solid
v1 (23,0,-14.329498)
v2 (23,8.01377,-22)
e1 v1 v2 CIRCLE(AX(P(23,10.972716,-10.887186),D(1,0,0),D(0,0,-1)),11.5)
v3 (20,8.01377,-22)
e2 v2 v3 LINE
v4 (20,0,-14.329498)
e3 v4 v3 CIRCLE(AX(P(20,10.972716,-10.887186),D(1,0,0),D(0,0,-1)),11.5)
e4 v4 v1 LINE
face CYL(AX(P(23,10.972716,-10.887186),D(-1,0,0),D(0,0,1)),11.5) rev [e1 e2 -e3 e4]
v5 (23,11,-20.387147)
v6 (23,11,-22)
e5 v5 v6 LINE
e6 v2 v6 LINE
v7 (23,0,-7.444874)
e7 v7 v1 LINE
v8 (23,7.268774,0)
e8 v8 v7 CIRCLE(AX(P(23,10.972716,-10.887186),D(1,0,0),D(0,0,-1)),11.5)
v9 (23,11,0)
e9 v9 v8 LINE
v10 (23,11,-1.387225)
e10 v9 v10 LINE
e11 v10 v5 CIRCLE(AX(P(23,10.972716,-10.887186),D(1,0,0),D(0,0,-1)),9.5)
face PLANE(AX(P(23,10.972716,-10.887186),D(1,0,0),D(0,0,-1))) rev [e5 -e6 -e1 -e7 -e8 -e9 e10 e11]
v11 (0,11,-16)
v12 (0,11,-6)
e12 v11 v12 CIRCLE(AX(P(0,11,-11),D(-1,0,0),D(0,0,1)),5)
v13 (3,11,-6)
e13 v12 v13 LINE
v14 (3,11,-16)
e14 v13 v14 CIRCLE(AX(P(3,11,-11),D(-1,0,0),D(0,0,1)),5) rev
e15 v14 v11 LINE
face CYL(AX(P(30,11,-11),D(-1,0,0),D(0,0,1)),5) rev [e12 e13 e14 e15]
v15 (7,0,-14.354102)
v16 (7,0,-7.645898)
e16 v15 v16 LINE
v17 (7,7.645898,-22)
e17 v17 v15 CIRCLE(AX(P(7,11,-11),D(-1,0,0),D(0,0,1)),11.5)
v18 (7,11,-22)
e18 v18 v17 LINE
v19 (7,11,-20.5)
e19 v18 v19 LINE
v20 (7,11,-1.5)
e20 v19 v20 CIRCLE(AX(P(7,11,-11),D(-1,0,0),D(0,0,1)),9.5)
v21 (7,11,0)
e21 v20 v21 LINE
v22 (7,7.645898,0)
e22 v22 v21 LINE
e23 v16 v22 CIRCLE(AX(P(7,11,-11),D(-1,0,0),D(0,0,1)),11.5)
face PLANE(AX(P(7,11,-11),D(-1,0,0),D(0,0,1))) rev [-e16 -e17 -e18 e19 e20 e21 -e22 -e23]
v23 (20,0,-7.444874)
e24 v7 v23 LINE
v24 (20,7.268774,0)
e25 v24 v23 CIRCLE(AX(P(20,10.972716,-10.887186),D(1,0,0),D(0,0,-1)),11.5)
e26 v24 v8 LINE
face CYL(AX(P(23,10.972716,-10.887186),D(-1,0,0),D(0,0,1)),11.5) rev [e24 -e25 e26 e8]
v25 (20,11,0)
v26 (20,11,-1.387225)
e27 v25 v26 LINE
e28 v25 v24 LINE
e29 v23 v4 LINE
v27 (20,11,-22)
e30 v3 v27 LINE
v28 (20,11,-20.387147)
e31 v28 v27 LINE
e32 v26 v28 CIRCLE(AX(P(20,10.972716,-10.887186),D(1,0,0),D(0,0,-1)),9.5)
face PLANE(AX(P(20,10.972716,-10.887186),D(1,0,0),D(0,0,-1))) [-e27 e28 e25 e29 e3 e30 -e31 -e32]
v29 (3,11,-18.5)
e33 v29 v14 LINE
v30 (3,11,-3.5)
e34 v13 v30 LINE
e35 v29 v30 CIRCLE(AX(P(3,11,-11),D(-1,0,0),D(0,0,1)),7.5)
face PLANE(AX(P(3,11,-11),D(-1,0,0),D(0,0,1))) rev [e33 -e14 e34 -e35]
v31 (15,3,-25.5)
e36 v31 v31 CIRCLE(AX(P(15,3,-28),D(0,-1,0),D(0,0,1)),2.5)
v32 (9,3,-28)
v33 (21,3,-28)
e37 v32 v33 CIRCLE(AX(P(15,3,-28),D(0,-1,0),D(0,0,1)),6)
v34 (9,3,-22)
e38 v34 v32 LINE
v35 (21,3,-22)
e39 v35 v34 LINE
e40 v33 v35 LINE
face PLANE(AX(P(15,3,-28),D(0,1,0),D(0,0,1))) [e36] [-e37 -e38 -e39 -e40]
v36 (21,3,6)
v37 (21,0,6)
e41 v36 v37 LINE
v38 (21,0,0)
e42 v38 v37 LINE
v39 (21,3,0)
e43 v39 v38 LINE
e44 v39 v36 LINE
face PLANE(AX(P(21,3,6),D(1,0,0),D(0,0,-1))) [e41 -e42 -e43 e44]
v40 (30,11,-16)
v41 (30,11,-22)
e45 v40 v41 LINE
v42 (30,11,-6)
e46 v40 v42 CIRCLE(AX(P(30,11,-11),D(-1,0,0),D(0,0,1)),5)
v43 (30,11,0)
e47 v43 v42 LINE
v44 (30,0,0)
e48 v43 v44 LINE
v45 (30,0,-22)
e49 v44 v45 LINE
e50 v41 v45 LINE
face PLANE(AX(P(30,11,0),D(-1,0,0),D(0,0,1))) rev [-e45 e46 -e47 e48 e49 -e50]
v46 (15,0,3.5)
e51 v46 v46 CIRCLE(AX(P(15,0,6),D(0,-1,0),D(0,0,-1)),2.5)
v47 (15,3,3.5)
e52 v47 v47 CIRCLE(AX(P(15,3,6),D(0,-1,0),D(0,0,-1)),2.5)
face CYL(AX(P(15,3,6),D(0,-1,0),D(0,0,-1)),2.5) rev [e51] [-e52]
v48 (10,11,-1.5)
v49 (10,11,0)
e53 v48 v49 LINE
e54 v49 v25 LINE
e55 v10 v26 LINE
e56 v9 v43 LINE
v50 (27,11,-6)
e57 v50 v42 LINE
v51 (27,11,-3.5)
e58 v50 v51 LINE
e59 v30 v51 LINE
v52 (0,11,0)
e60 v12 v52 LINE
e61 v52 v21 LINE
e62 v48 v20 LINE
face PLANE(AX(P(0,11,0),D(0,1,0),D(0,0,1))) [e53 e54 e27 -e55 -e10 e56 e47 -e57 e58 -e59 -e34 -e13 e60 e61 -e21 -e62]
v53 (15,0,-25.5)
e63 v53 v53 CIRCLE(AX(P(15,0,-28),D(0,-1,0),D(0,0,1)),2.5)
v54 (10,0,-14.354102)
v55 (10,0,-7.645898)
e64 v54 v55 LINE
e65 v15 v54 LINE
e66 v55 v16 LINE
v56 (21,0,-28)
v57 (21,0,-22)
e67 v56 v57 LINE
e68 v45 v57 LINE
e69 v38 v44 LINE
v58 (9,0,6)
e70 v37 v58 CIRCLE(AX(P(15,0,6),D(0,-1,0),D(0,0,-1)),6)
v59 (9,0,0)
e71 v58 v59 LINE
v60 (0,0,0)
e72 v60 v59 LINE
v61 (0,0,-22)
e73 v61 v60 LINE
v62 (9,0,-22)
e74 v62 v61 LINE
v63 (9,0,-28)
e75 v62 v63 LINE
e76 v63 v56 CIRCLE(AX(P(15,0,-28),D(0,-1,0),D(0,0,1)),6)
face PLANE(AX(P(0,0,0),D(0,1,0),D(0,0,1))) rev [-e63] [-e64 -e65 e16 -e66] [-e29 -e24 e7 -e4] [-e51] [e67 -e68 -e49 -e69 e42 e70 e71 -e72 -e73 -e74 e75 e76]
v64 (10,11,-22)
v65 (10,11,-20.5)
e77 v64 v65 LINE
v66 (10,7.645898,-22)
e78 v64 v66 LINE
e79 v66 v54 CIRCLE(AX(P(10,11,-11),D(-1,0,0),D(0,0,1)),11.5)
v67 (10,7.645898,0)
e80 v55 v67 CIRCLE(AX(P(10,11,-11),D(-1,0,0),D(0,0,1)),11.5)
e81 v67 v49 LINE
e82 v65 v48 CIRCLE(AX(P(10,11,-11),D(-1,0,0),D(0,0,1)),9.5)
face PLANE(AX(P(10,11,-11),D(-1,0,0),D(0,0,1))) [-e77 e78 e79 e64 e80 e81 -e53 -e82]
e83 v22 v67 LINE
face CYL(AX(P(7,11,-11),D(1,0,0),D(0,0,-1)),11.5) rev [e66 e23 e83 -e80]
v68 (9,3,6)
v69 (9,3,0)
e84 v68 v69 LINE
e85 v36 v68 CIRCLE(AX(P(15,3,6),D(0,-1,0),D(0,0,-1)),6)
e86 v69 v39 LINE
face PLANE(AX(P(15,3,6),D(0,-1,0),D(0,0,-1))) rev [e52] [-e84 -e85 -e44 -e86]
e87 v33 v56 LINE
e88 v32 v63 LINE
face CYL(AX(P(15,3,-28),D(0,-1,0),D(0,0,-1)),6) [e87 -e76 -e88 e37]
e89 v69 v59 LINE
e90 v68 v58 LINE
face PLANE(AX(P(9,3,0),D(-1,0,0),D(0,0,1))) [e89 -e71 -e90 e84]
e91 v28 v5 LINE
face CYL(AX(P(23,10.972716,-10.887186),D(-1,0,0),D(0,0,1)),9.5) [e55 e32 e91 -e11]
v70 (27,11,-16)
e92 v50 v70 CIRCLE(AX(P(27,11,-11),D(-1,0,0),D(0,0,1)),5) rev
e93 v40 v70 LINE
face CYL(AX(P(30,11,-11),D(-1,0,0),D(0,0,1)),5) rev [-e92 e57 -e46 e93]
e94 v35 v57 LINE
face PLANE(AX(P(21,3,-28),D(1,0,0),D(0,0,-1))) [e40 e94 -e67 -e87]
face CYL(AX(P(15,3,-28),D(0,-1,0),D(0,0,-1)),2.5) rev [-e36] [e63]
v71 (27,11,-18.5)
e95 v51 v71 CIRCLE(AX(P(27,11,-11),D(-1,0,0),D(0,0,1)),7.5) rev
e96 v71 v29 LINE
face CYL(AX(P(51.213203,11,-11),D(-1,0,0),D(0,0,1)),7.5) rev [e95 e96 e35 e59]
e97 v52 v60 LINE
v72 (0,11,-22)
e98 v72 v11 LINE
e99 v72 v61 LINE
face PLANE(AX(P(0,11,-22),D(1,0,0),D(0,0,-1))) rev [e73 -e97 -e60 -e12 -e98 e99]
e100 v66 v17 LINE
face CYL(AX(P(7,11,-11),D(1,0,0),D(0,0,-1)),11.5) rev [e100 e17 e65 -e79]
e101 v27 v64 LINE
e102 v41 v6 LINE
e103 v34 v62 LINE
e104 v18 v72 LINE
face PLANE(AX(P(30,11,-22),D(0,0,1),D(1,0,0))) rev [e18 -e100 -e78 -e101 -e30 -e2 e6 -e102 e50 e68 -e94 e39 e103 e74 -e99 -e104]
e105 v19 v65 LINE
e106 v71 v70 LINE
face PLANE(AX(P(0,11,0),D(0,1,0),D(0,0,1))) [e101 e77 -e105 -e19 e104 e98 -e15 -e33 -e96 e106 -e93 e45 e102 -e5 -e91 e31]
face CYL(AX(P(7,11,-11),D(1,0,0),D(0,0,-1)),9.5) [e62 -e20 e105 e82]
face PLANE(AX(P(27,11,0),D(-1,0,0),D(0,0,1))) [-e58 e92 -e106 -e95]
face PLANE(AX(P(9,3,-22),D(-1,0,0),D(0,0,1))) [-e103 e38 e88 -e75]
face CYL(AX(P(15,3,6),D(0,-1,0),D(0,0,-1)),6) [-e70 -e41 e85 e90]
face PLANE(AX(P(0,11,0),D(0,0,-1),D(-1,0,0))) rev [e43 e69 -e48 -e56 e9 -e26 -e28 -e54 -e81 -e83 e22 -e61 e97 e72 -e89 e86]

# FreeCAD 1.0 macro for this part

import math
import FreeCAD as App
import Part
import Sketcher
from FreeCAD import Vector
Q = App.Units.Quantity

doc = App.newDocument("Part")
body = doc.addObject("PartDesign::Body", "Body")

# Sketch on XZ plane
sketch1 = body.newObject("Sketcher::SketchObject", "Sketch")
sketch1.AttachmentSupport = (doc.getObject("XZ_Plane"), [""])
sketch1.MapMode = "FlatFace"
sketch1.addGeometry([
    Part.LineSegment(Vector(0, -22, 0), Vector(0, 0, 0)),
    Part.LineSegment(Vector(0, 0, 0), Vector(30, 0, 0)),
    Part.LineSegment(Vector(30, 0, 0), Vector(30, -22, 0)),
    Part.LineSegment(Vector(30, -22, 0), Vector(0, -22, 0)),
], False)
sketch1.addConstraint([
    Sketcher.Constraint("Coincident", 0, 2, 1, 1),
    Sketcher.Constraint("Coincident", 1, 2, 2, 1),
    Sketcher.Constraint("Coincident", 2, 2, 3, 1),
    Sketcher.Constraint("Coincident", 3, 2, 0, 1),
    Sketcher.Constraint("Vertical", 0),
    Sketcher.Constraint("Horizontal", 1),
    Sketcher.Constraint("Vertical", 2),
    Sketcher.Constraint("Horizontal", 3),
    Sketcher.Constraint("Coincident", 0, 2, -1, 1),
    Sketcher.Constraint("DistanceX", 1, 1, 1, 2, Q("30 mm")),
    Sketcher.Constraint("DistanceY", 0, 1, 0, 2, Q("22 mm")),
])
pad1 = body.newObject("PartDesign::Pad", "Pad")
pad1.Profile = sketch1
pad1.Length = 11
pad1.Reversed = True

# Sketch on XZ plane
sketch2 = body.newObject("Sketcher::SketchObject", "Sketch001")
sketch2.AttachmentSupport = (doc.getObject("XZ_Plane"), [""])
sketch2.MapMode = "FlatFace"
sketch2.addGeometry([
    Part.LineSegment(Vector(21, 0, 0), Vector(21, 6, 0)),  # 0
    Part.ArcOfCircle(Part.Circle(Vector(15, 6, 0), Vector(0, 0, 1), 6), math.radians(0), math.radians(180)),  # 1
    Part.LineSegment(Vector(9, 6, 0), Vector(9, 0, 0)),  # 2
    Part.LineSegment(Vector(9, 0, 0), Vector(21, 0, 0)),  # 3
    Part.Circle(Vector(15, 6, 0), Vector(0, 0, 1), 2.5),  # 4
    Part.LineSegment(Vector(9, -22, 0), Vector(9, -28, 0)),  # 5
    Part.ArcOfCircle(Part.Circle(Vector(15, -28, 0), Vector(0, 0, 1), 6), math.radians(180), math.radians(360)),  # 6
    Part.LineSegment(Vector(21, -28, 0), Vector(21, -22, 0)),  # 7
    Part.LineSegment(Vector(21, -22, 0), Vector(9, -22, 0)),  # 8
    Part.Circle(Vector(15, -28, 0), Vector(0, 0, 1), 2.5),  # 9
], False)
sketch2.addConstraint([
    Sketcher.Constraint("Tangent", 0, 2, 1, 1),
    Sketcher.Constraint("Tangent", 1, 2, 2, 1),
    Sketcher.Constraint("Coincident", 2, 2, 3, 1),
    Sketcher.Constraint("Coincident", 3, 2, 0, 1),
    Sketcher.Constraint("Tangent", 5, 2, 6, 1),
    Sketcher.Constraint("Tangent", 6, 2, 7, 1),
    Sketcher.Constraint("Coincident", 7, 2, 8, 1),
    Sketcher.Constraint("Coincident", 8, 2, 5, 1),
    Sketcher.Constraint("Vertical", 0),
    Sketcher.Constraint("Vertical", 2),
    Sketcher.Constraint("Horizontal", 3),
    Sketcher.Constraint("Vertical", 5),
    Sketcher.Constraint("Vertical", 7),
    Sketcher.Constraint("Horizontal", 8),
    Sketcher.Constraint("Coincident", 4, 3, 1, 3),
    Sketcher.Constraint("Coincident", 9, 3, 6, 3),
    Sketcher.Constraint("Equal", 1, 6),
    Sketcher.Constraint("Equal", 4, 9),
    Sketcher.Constraint("PointOnObject", 2, 2, -1),
    Sketcher.Constraint("Vertical", 4, 3, 6, 3),
    Sketcher.Constraint("Equal", 2, 5),
    Sketcher.Constraint("Diameter", 4, Q("5 mm")),
    Sketcher.Constraint("Radius", 1, Q("6 mm")),
    Sketcher.Constraint("DistanceY", 0, 1, 0, 2, Q("6 mm")),
    Sketcher.Constraint("DistanceX", -1, 1, 1, 3, Q("15 mm")),
    Sketcher.Constraint("DistanceY", 6, 3, -1, 1, Q("28 mm")),
])
pad2 = body.newObject("PartDesign::Pad", "Pad001")
pad2.Profile = sketch2
pad2.Length = 3
pad2.Reversed = True

# Sketch on YZ plane
sketch3 = body.newObject("Sketcher::SketchObject", "Sketch002")
sketch3.AttachmentSupport = (doc.getObject("YZ_Plane"), [""])
sketch3.MapMode = "FlatFace"
sketch3.addGeometry(Part.Circle(Vector(11, -11, 0), Vector(0, 0, 1), 5), False)
sketch3.addConstraint([
    Sketcher.Constraint("Diameter", 0, Q("10 mm")),
    Sketcher.Constraint("DistanceX", -1, 1, 0, 3, Q("11 mm")),
    Sketcher.Constraint("DistanceY", 0, 3, -1, 1, Q("11 mm")),
])
pocket1 = body.newObject("PartDesign::Pocket", "Pocket")
pocket1.Profile = sketch3
pocket1.Type = "ThroughAll"
pocket1.Reversed = True

# Sketch on YZ plane
sketch4 = body.newObject("Sketcher::SketchObject", "Sketch003")
sketch4.AttachmentSupport = (doc.getObject("YZ_Plane"), [""])
sketch4.MapMode = "FlatFace"
sketch4.AttachmentOffset = App.Placement(Vector(0, 0, 10), App.Rotation())
sketch4.addGeometry([
    Part.Circle(Vector(11, -11, 0), Vector(0, 0, 1), 12),
    Part.Circle(Vector(11, -11, 0), Vector(0, 0, 1), 10),
], False)
sketch4.addConstraint([
    Sketcher.Constraint("Coincident", 1, 3, 0, 3),
    Sketcher.Constraint("Diameter", 0, Q("23 mm")),
    Sketcher.Constraint("Diameter", 1, Q("19 mm")),
    Sketcher.Constraint("DistanceX", -1, 1, 0, 3, Q("11 mm")),
    Sketcher.Constraint("DistanceY", 0, 3, -1, 1, Q("11 mm")),
])
pocket2 = body.newObject("PartDesign::Pocket", "Pocket001")
pocket2.Profile = sketch4
pocket2.Length = 3

# Sketch on YZ plane
sketch5 = body.newObject("Sketcher::SketchObject", "Sketch004")
sketch5.AttachmentSupport = (doc.getObject("YZ_Plane"), [""])
sketch5.MapMode = "FlatFace"
sketch5.AttachmentOffset = App.Placement(Vector(0, 0, 20), App.Rotation())
sketch5.addGeometry([
    Part.Circle(Vector(11, -11, 0), Vector(0, 0, 1), 12),
    Part.Circle(Vector(11, -11, 0), Vector(0, 0, 1), 10),
], False)
sketch5.addConstraint([
    Sketcher.Constraint("Coincident", 1, 3, 0, 3),
    Sketcher.Constraint("Diameter", 0, Q("23 mm")),
    Sketcher.Constraint("Diameter", 1, Q("19 mm")),
    Sketcher.Constraint("DistanceX", -1, 1, 0, 3, Q("10.972716 mm")),
    Sketcher.Constraint("DistanceY", 0, 3, -1, 1, Q("10.887186 mm")),
])
pocket3 = body.newObject("PartDesign::Pocket", "Pocket002")
pocket3.Profile = sketch5
pocket3.Length = 3
pocket3.Reversed = True

# Sketch on YZ plane
sketch6 = body.newObject("Sketcher::SketchObject", "Sketch005")
sketch6.AttachmentSupport = (doc.getObject("YZ_Plane"), [""])
sketch6.MapMode = "FlatFace"
sketch6.AttachmentOffset = App.Placement(Vector(0, 0, 3), App.Rotation())
sketch6.addGeometry(Part.Circle(Vector(11, -11, 0), Vector(0, 0, 1), 8), False)
sketch6.addConstraint([
    Sketcher.Constraint("Diameter", 0, Q("15 mm")),
    Sketcher.Constraint("DistanceX", -1, 1, 0, 3, Q("11 mm")),
    Sketcher.Constraint("DistanceY", 0, 3, -1, 1, Q("11 mm")),
])
pocket4 = body.newObject("PartDesign::Pocket", "Pocket003")
pocket4.Profile = sketch6
pocket4.Length = 24
pocket4.Reversed = True

doc.recompute()
